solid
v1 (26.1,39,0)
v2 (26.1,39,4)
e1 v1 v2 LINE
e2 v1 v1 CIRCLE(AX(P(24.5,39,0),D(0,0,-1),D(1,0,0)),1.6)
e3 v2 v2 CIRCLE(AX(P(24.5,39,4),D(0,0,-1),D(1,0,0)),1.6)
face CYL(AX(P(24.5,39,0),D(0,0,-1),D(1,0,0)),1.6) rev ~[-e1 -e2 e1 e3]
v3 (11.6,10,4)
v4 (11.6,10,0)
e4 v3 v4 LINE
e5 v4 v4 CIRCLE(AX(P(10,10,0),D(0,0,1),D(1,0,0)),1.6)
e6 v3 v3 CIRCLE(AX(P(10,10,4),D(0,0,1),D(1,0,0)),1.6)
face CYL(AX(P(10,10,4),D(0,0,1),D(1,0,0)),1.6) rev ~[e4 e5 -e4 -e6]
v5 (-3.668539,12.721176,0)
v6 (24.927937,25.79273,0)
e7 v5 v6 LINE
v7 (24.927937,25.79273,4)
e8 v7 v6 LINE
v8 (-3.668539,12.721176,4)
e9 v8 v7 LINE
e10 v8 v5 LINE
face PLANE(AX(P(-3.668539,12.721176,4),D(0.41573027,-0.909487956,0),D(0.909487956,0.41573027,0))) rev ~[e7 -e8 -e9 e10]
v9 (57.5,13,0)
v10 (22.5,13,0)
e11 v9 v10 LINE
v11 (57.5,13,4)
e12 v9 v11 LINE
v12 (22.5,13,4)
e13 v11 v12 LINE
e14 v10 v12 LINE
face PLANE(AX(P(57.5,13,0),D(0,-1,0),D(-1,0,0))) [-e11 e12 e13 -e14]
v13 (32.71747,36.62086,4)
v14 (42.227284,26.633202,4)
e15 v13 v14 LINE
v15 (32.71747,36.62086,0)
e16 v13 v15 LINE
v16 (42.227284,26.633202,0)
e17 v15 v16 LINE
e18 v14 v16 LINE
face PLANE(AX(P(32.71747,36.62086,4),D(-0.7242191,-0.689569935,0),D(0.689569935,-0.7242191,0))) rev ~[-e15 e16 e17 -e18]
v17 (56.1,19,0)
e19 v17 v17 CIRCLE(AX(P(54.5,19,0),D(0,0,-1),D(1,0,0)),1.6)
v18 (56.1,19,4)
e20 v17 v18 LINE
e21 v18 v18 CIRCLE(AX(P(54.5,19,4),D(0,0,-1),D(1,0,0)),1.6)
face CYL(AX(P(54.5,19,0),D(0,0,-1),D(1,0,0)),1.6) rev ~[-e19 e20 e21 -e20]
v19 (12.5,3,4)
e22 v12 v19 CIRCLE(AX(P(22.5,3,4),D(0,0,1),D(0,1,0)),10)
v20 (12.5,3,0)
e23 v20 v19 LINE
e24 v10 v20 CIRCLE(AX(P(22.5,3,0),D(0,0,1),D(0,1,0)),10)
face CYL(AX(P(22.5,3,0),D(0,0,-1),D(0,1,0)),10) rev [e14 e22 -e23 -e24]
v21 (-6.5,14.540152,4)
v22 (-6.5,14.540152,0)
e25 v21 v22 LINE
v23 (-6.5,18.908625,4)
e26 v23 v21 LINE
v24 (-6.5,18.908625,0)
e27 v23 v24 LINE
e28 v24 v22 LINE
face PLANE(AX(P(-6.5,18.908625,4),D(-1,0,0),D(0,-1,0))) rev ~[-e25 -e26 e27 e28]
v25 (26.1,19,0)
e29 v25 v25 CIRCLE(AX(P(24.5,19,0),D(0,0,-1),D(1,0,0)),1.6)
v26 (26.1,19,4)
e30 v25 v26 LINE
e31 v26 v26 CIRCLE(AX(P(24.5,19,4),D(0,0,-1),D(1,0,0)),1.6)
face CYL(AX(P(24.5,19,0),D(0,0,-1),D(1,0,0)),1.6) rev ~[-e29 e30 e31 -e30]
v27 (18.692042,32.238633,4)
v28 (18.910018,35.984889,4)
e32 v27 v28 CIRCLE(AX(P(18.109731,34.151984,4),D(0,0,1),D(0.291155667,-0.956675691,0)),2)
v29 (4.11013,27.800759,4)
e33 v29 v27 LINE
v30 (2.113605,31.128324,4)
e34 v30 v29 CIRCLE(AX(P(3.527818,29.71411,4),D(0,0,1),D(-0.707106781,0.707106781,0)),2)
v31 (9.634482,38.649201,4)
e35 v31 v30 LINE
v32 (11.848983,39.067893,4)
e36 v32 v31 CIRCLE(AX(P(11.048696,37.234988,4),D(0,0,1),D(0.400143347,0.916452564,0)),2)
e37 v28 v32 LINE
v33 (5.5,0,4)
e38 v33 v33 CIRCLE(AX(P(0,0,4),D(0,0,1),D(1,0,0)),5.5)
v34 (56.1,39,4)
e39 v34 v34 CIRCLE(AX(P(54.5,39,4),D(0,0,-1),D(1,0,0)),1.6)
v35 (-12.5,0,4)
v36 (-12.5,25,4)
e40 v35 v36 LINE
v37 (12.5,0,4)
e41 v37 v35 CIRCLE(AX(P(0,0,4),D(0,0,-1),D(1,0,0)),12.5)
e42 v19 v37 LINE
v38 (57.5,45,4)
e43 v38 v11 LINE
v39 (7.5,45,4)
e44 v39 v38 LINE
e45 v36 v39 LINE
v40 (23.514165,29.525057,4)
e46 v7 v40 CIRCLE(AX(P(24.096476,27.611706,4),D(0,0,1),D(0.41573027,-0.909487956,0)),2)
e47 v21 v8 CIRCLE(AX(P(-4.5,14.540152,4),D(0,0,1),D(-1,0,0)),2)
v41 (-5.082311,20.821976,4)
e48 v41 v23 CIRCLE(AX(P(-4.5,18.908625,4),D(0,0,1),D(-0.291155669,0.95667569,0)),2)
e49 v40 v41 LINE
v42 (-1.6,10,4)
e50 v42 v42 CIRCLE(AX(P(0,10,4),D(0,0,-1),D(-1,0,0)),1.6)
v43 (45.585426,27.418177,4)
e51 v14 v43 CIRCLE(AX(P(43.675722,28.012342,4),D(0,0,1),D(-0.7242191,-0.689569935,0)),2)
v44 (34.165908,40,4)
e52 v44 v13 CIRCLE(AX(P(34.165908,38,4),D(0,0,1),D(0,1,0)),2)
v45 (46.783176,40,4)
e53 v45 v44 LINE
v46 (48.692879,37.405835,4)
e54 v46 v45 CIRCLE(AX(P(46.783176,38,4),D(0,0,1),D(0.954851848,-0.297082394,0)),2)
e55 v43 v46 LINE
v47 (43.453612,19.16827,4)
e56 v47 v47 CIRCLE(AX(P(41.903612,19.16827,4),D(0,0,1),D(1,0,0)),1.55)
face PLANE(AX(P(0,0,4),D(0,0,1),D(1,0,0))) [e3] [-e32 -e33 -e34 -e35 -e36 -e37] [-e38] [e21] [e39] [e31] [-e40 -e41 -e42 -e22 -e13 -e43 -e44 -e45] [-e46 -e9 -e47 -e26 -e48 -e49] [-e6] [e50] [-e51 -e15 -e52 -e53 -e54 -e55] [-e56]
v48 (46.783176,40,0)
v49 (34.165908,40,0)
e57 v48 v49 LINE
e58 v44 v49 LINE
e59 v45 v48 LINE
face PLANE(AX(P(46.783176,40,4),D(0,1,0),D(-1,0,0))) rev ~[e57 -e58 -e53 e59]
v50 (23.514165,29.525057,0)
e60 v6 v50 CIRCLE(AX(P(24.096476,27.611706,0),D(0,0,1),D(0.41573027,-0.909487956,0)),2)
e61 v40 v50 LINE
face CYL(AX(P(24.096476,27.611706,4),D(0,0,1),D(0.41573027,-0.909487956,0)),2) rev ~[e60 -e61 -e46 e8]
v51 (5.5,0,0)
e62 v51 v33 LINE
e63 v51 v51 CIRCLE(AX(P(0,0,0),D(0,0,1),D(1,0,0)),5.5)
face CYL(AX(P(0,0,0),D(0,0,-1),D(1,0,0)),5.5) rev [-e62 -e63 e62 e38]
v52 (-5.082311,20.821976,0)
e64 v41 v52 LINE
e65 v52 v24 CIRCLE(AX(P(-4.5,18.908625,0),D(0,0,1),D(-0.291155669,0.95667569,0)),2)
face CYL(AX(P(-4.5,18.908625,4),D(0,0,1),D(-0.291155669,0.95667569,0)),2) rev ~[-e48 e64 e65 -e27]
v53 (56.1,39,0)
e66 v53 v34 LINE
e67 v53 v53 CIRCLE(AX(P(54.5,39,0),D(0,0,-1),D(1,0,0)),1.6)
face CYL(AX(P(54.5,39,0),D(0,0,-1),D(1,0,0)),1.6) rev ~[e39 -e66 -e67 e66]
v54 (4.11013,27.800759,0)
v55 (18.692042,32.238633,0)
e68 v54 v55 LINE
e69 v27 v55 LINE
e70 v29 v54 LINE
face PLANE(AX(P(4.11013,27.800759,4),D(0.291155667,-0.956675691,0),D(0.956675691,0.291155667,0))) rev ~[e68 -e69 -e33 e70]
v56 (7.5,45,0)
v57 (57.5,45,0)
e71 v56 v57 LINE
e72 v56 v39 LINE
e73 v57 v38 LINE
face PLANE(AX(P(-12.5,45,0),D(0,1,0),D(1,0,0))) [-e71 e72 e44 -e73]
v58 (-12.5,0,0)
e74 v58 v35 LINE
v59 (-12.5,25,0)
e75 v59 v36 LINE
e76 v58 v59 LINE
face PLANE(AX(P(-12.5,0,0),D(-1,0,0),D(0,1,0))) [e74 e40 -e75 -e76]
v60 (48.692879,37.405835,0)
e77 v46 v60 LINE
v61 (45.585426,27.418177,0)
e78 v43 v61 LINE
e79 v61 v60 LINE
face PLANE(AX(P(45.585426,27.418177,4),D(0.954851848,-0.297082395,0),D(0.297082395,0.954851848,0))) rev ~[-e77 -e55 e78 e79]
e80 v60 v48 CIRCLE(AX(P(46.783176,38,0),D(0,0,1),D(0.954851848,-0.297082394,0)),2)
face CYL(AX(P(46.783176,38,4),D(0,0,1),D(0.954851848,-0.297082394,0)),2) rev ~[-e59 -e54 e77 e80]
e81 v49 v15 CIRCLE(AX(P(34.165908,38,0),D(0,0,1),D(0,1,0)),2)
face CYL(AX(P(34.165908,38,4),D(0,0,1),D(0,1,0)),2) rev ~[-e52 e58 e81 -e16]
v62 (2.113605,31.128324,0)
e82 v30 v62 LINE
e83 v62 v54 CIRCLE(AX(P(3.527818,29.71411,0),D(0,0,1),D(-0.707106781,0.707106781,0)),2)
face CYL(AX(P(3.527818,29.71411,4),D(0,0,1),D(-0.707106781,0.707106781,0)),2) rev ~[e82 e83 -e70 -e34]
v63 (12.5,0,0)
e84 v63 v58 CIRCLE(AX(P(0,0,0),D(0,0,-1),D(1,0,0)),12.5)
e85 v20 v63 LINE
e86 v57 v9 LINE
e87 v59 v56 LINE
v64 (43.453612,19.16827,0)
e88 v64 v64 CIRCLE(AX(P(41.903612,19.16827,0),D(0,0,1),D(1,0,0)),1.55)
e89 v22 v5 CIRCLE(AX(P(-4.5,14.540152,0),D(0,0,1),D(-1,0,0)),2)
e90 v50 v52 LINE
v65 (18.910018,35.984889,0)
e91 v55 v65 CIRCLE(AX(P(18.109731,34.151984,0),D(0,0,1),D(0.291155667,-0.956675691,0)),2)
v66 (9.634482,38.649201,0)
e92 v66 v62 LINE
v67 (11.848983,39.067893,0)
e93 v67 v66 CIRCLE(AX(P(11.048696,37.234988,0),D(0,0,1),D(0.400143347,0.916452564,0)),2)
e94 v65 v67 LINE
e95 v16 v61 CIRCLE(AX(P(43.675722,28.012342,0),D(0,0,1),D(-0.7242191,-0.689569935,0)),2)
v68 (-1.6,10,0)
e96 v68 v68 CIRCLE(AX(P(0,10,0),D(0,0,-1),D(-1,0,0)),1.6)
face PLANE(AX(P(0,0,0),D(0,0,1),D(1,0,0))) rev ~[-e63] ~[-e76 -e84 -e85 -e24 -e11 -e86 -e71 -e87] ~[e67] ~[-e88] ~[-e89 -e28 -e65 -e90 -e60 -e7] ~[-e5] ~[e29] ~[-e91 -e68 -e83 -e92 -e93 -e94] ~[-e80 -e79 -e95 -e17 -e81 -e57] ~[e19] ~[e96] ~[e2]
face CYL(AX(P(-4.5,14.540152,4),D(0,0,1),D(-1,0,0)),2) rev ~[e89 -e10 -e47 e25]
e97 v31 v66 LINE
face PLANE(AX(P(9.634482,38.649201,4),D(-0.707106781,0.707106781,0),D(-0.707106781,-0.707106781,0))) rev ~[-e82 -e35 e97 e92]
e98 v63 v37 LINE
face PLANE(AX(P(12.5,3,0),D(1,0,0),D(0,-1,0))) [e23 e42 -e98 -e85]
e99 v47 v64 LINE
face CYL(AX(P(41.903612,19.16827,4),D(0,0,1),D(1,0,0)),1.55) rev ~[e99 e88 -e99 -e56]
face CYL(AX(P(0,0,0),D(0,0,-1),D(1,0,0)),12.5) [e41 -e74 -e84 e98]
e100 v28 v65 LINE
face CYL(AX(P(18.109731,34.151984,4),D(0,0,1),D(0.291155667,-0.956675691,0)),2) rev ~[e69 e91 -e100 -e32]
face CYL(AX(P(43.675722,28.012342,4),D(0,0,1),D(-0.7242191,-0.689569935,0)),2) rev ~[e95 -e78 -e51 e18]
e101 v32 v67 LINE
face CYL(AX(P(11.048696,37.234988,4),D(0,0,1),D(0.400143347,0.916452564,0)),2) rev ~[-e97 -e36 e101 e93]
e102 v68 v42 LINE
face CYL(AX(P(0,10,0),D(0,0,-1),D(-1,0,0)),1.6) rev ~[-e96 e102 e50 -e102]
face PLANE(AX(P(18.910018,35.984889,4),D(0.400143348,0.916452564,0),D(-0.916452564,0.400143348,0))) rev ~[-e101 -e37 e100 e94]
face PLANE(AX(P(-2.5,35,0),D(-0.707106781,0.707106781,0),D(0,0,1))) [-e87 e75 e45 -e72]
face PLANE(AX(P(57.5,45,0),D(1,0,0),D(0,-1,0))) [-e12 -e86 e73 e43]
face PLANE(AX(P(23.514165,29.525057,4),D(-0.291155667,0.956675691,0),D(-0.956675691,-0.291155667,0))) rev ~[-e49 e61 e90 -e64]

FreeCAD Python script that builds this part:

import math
import FreeCAD as App
import Part
import Sketcher

V = App.Vector
Q = App.Units.Quantity


def edges_at(feature, points):
    """Names of the edges that pass closest to the given points."""
    edges = feature.Shape.Edges
    near = lambda p: min(range(len(edges)), key=lambda i: edges[i].distToShape(Part.Vertex(*p))[0])
    return sorted({f"Edge{near(p) + 1}" for p in points})

doc = App.newDocument("Part")
body = doc.addObject("PartDesign::Body", "Body")

sketch1 = body.newObject("Sketcher::SketchObject", "Sketch")
sketch1.AttachmentSupport = (doc.getObject("XY_Plane"), [""])
sketch1.MapMode = "FlatFace"
sketch1.addGeometry([
    Part.LineSegment(V(-12.5, 0, 0), V(-12.5, 45, 0)),
    Part.LineSegment(V(-12.5, 45, 0), V(57.5, 45, 0)),
    Part.LineSegment(V(57.5, 45, 0), V(57.5, 13, 0)),
    Part.LineSegment(V(57.5, 13, 0), V(22.5, 13, 0)),
    Part.ArcOfCircle(Part.Circle(V(22.5, 3, 0), V(0, 0, 1), 10), math.radians(90), math.radians(180)),
    Part.LineSegment(V(12.5, 3, 0), V(12.5, 0, 0)),
    Part.ArcOfCircle(Part.Circle(V(0, 0, 0), V(0, 0, 1), 12.5), math.radians(180), math.radians(360)),
    Part.Circle(V(0, 0, 0), V(0, 0, 1), 6.075),
    Part.Circle(V(54.5, 19, 0), V(0, 0, 1), 1.6),
    Part.Circle(V(54.5, 39, 0), V(0, 0, 1), 1.6),
    Part.Circle(V(24.5, 19, 0), V(0, 0, 1), 1.6),
    Part.Circle(V(24.5, 39, 0), V(0, 0, 1), 1.6),
], False)
sketch1.addConstraint([
    Sketcher.Constraint("Coincident", 0, 2, 1, 1),
    Sketcher.Constraint("Coincident", 1, 2, 2, 1),
    Sketcher.Constraint("Coincident", 2, 2, 3, 1),
    Sketcher.Constraint("Tangent", 3, 2, 4, 1),
    Sketcher.Constraint("Tangent", 4, 2, 5, 1),
    Sketcher.Constraint("Tangent", 5, 2, 6, 2),
    Sketcher.Constraint("Tangent", 6, 1, 0, 1),
    Sketcher.Constraint("Vertical", 0),
    Sketcher.Constraint("Horizontal", 1),
    Sketcher.Constraint("Vertical", 2),
    Sketcher.Constraint("Horizontal", 3),
    Sketcher.Constraint("Vertical", 5),
    Sketcher.Constraint("Coincident", 6, 3, -1, 1),
    Sketcher.Constraint("Coincident", 7, 3, -1, 1),
    Sketcher.Constraint("Equal", 8, 9),
    Sketcher.Constraint("Equal", 9, 10),
    Sketcher.Constraint("Equal", 10, 11),
    Sketcher.Constraint("Horizontal", 8, 3, 10, 3),
    Sketcher.Constraint("Horizontal", 9, 3, 11, 3),
    Sketcher.Constraint("Vertical", 8, 3, 9, 3),
    Sketcher.Constraint("Vertical", 10, 3, 11, 3),
    Sketcher.Constraint("Radius", 4, 10.0),
    Sketcher.Constraint("Diameter", 8, 3.2),
    Sketcher.Constraint("Radius", 6, 12.5),
    Sketcher.Constraint("Diameter", 7, 12.15),
    Sketcher.Constraint("DistanceX", 1, 1, 1, 2, 70.0),
    Sketcher.Constraint("DistanceY", 0, 1, 0, 2, 45.0),
    Sketcher.Constraint("DistanceY", 2, 2, 2, 1, 32.0),
    Sketcher.Constraint("DistanceY", -1, 1, 8, 3, 19.0),
    Sketcher.Constraint("DistanceY", -1, 1, 9, 3, 39.0),
    Sketcher.Constraint("DistanceX", 4, 3, 8, 3, 32.0),
    Sketcher.Constraint("DistanceX", 4, 3, 10, 3, 2.0),
])
pad1 = body.newObject("PartDesign::Pad", "Pad")
pad1.Profile = sketch1
pad1.Length = 4

sketch2 = body.newObject("Sketcher::SketchObject", "Sketch001")
sketch2.AttachmentSupport = (doc.getObject("XY_Plane"), [""])
sketch2.MapMode = "FlatFace"
sketch2.addGeometry(Part.Circle(V(0, 10, 0), V(0, 0, 1), 1.6), False)
sketch2.addConstraint([
    Sketcher.Constraint("PointOnObject", 0, 3, -2),
    Sketcher.Constraint("Diameter", 0, 3.2),
    Sketcher.Constraint("DistanceY", -1, 1, 0, 3, 10.0),
])
pocket1 = body.newObject("PartDesign::Pocket", "Pocket")
pocket1.Profile = sketch2
pocket1.Type = "UpToFirst"
pocket1.Reversed = True

sketch3 = body.newObject("Sketcher::SketchObject", "Sketch002")
sketch3.AttachmentSupport = (doc.getObject("XY_Plane"), [""])
sketch3.MapMode = "FlatFace"
sketch3.AttachmentOffset = App.Placement(V(0, 0, 4), App.Rotation())
sketch3.addGeometry(Part.Circle(V(10, 10, 0), V(0, 0, 1), 1.6), False)
sketch3.addConstraint([
    Sketcher.Constraint("Diameter", 0, 3.2),
    Sketcher.Constraint("DistanceX", -1, 1, 0, 3, 10.0),
    Sketcher.Constraint("DistanceY", -1, 1, 0, 3, 10.0),
])
pocket2 = body.newObject("PartDesign::Pocket", "Pocket001")
pocket2.Profile = sketch3
pocket2.Type = "UpToFirst"

sketch4 = body.newObject("Sketcher::SketchObject", "Sketch003")
sketch4.AttachmentSupport = (doc.getObject("XY_Plane"), [""])
sketch4.MapMode = "FlatFace"
sketch4.AttachmentOffset = App.Placement(V(0, 0, 4), App.Rotation())
sketch4.addGeometry(Part.Circle(V(41.903612, 19.16827, 0), V(0, 0, 1), 1.55), False)
sketch4.addConstraint([
    Sketcher.Constraint("Diameter", 0, 3.1),
    Sketcher.Constraint("DistanceY", -1, 1, 0, 3, 19.16827),
    Sketcher.Constraint("DistanceX", -1, 1, 0, 3, 41.903612),
])
pocket3 = body.newObject("PartDesign::Pocket", "Pocket002")
pocket3.Profile = sketch4
pocket3.Type = "UpToFirst"

sketch5 = body.newObject("Sketcher::SketchObject", "Sketch004")
sketch5.AttachmentSupport = (doc.getObject("XY_Plane"), [""])
sketch5.MapMode = "FlatFace"
sketch5.addGeometry([
    Part.Circle(V(0, 0, 0), V(0, 0, 1), 6.075),
    Part.Circle(V(0, 0, 0), V(0, 0, 1), 5.5),
], False)
sketch5.addConstraint([
    Sketcher.Constraint("Coincident", 0, 3, -1, 1),
    Sketcher.Constraint("Coincident", 1, 3, -1, 1),
    Sketcher.Constraint("Diameter", 1, 11.0),
    Sketcher.Constraint("Diameter", 0, 12.15),
])
pad2 = body.newObject("PartDesign::Pad", "Pad001")
pad2.Profile = sketch5
pad2.Length = 4
doc.recompute()

chamfer = body.newObject("PartDesign::Chamfer", "Chamfer")
chamfer.Base = (pad2, edges_at(pad2, [(-12.5, 45, 2)]))
chamfer.Size = 20

sketch6 = body.newObject("Sketcher::SketchObject", "Sketch005")
sketch6.AttachmentSupport = (doc.getObject("XY_Plane"), [""])
sketch6.MapMode = "FlatFace"
sketch6.AttachmentOffset = App.Placement(V(0, 0, 4), App.Rotation())
sketch6.addGeometry([
    Part.LineSegment(V(9.634482, 38.649201, 0), V(2.113605, 31.128324, 0)),
    Part.ArcOfCircle(Part.Circle(V(3.527818, 29.71411, 0), V(0, 0, 1), 2), math.radians(135), math.radians(286.927157)),
    Part.LineSegment(V(4.11013, 27.800759, 0), V(18.692042, 32.238633, 0)),
    Part.ArcOfCircle(Part.Circle(V(18.109731, 34.151984, 0), V(0, 0, 1), 2), math.radians(-73.072843), math.radians(66.41286)),
    Part.LineSegment(V(18.910018, 35.984889, 0), V(11.848983, 39.067893, 0)),
    Part.ArcOfCircle(Part.Circle(V(11.048696, 37.234988, 0), V(0, 0, 1), 2), math.radians(66.41286), math.radians(135)),
    Part.LineSegment(V(32.71747, 36.62086, 0), V(42.227284, 26.633202, 0)),
    Part.ArcOfCircle(Part.Circle(V(43.675722, 28.012342, 0), V(0, 0, 1), 2), math.radians(-136.403925), math.radians(-17.282449)),
    Part.LineSegment(V(45.585426, 27.418177, 0), V(48.692879, 37.405835, 0)),
    Part.ArcOfCircle(Part.Circle(V(46.783176, 38, 0), V(0, 0, 1), 2), math.radians(-17.282449), math.radians(90)),
    Part.LineSegment(V(46.783176, 40, 0), V(34.165908, 40, 0)),
    Part.ArcOfCircle(Part.Circle(V(34.165908, 38, 0), V(0, 0, 1), 2), math.radians(90), math.radians(223.596075)),
    Part.LineSegment(V(-6.5, 18.908625, 0), V(-6.5, 14.540152, 0)),
    Part.ArcOfCircle(Part.Circle(V(-4.5, 14.540152, 0), V(0, 0, 1), 2), math.radians(-180), math.radians(-65.434687)),
    Part.LineSegment(V(-3.668539, 12.721176, 0), V(24.927937, 25.79273, 0)),
    Part.ArcOfCircle(Part.Circle(V(24.096476, 27.611706, 0), V(0, 0, 1), 2), math.radians(-65.434687), math.radians(106.927157)),
    Part.LineSegment(V(23.514165, 29.525057, 0), V(-5.082311, 20.821976, 0)),
    Part.ArcOfCircle(Part.Circle(V(-4.5, 18.908625, 0), V(0, 0, 1), 2), math.radians(106.927157), math.radians(180)),
], False)
sketch6.addConstraint([
    Sketcher.Constraint("Tangent", 0, 2, 1, 1),
    Sketcher.Constraint("Tangent", 1, 2, 2, 1),
    Sketcher.Constraint("Tangent", 2, 2, 3, 1),
    Sketcher.Constraint("Tangent", 3, 2, 4, 1),
    Sketcher.Constraint("Tangent", 4, 2, 5, 1),
    Sketcher.Constraint("Tangent", 5, 2, 0, 1),
    Sketcher.Constraint("Tangent", 6, 2, 7, 1),
    Sketcher.Constraint("Tangent", 7, 2, 8, 1),
    Sketcher.Constraint("Tangent", 8, 2, 9, 1),
    Sketcher.Constraint("Tangent", 9, 2, 10, 1),
    Sketcher.Constraint("Tangent", 10, 2, 11, 1),
    Sketcher.Constraint("Tangent", 11, 2, 6, 1),
    Sketcher.Constraint("Tangent", 12, 2, 13, 1),
    Sketcher.Constraint("Tangent", 13, 2, 14, 1),
    Sketcher.Constraint("Tangent", 14, 2, 15, 1),
    Sketcher.Constraint("Tangent", 15, 2, 16, 1),
    Sketcher.Constraint("Tangent", 16, 2, 17, 1),
    Sketcher.Constraint("Tangent", 17, 2, 12, 1),
    Sketcher.Constraint("Horizontal", 10),
    Sketcher.Constraint("Vertical", 12),
    Sketcher.Constraint("Equal", 1, 3),
    Sketcher.Constraint("Equal", 3, 5),
    Sketcher.Constraint("Equal", 5, 7),
    Sketcher.Constraint("Equal", 7, 9),
    Sketcher.Constraint("Equal", 9, 11),
    Sketcher.Constraint("Equal", 11, 13),
    Sketcher.Constraint("Equal", 13, 15),
    Sketcher.Constraint("Equal", 15, 17),
    Sketcher.Constraint("Parallel", 2, 16),
    Sketcher.Constraint("Radius", 1, 2.0),
    Sketcher.Constraint("Angle", 0, Q("-135 deg")),
    Sketcher.Constraint("DistanceY", -1, 1, 9, 3, 38.0),
    Sketcher.Constraint("DistanceX", 13, 3, -1, 1, 4.5),
    Sketcher.Constraint("DistanceY", -1, 1, 5, 2, 38.649201),
    Sketcher.Constraint("DistanceY", -1, 1, 6, 2, 26.633202),
    Sketcher.Constraint("DistanceY", 17, 3, 0, 2, 12.219699),
    Sketcher.Constraint("DistanceX", 1, 2, 3, 3, 13.999601),
    Sketcher.Constraint("DistanceY", 3, 2, 5, 3, 1.250098),
    Sketcher.Constraint("DistanceX", 5, 2, 4, 2, 2.2145),
    Sketcher.Constraint("DistanceY", 13, 2, 16, 2, 8.1008),
    Sketcher.Constraint("Distance", 14, 31.442391),
    Sketcher.Constraint("DistanceX", 10, 2, 10, 1, 12.617267),
    Sketcher.Constraint("DistanceX", -1, 1, 1, 3, 3.527818),
    Sketcher.Constraint("DistanceY", -1, 1, 7, 3, 28.012342),
    Sketcher.Constraint("DistanceX", -1, 1, 11, 3, 34.165908),
])
pocket4 = body.newObject("PartDesign::Pocket", "Pocket003")
pocket4.Profile = sketch6
pocket4.Length = 10

doc.recompute()
